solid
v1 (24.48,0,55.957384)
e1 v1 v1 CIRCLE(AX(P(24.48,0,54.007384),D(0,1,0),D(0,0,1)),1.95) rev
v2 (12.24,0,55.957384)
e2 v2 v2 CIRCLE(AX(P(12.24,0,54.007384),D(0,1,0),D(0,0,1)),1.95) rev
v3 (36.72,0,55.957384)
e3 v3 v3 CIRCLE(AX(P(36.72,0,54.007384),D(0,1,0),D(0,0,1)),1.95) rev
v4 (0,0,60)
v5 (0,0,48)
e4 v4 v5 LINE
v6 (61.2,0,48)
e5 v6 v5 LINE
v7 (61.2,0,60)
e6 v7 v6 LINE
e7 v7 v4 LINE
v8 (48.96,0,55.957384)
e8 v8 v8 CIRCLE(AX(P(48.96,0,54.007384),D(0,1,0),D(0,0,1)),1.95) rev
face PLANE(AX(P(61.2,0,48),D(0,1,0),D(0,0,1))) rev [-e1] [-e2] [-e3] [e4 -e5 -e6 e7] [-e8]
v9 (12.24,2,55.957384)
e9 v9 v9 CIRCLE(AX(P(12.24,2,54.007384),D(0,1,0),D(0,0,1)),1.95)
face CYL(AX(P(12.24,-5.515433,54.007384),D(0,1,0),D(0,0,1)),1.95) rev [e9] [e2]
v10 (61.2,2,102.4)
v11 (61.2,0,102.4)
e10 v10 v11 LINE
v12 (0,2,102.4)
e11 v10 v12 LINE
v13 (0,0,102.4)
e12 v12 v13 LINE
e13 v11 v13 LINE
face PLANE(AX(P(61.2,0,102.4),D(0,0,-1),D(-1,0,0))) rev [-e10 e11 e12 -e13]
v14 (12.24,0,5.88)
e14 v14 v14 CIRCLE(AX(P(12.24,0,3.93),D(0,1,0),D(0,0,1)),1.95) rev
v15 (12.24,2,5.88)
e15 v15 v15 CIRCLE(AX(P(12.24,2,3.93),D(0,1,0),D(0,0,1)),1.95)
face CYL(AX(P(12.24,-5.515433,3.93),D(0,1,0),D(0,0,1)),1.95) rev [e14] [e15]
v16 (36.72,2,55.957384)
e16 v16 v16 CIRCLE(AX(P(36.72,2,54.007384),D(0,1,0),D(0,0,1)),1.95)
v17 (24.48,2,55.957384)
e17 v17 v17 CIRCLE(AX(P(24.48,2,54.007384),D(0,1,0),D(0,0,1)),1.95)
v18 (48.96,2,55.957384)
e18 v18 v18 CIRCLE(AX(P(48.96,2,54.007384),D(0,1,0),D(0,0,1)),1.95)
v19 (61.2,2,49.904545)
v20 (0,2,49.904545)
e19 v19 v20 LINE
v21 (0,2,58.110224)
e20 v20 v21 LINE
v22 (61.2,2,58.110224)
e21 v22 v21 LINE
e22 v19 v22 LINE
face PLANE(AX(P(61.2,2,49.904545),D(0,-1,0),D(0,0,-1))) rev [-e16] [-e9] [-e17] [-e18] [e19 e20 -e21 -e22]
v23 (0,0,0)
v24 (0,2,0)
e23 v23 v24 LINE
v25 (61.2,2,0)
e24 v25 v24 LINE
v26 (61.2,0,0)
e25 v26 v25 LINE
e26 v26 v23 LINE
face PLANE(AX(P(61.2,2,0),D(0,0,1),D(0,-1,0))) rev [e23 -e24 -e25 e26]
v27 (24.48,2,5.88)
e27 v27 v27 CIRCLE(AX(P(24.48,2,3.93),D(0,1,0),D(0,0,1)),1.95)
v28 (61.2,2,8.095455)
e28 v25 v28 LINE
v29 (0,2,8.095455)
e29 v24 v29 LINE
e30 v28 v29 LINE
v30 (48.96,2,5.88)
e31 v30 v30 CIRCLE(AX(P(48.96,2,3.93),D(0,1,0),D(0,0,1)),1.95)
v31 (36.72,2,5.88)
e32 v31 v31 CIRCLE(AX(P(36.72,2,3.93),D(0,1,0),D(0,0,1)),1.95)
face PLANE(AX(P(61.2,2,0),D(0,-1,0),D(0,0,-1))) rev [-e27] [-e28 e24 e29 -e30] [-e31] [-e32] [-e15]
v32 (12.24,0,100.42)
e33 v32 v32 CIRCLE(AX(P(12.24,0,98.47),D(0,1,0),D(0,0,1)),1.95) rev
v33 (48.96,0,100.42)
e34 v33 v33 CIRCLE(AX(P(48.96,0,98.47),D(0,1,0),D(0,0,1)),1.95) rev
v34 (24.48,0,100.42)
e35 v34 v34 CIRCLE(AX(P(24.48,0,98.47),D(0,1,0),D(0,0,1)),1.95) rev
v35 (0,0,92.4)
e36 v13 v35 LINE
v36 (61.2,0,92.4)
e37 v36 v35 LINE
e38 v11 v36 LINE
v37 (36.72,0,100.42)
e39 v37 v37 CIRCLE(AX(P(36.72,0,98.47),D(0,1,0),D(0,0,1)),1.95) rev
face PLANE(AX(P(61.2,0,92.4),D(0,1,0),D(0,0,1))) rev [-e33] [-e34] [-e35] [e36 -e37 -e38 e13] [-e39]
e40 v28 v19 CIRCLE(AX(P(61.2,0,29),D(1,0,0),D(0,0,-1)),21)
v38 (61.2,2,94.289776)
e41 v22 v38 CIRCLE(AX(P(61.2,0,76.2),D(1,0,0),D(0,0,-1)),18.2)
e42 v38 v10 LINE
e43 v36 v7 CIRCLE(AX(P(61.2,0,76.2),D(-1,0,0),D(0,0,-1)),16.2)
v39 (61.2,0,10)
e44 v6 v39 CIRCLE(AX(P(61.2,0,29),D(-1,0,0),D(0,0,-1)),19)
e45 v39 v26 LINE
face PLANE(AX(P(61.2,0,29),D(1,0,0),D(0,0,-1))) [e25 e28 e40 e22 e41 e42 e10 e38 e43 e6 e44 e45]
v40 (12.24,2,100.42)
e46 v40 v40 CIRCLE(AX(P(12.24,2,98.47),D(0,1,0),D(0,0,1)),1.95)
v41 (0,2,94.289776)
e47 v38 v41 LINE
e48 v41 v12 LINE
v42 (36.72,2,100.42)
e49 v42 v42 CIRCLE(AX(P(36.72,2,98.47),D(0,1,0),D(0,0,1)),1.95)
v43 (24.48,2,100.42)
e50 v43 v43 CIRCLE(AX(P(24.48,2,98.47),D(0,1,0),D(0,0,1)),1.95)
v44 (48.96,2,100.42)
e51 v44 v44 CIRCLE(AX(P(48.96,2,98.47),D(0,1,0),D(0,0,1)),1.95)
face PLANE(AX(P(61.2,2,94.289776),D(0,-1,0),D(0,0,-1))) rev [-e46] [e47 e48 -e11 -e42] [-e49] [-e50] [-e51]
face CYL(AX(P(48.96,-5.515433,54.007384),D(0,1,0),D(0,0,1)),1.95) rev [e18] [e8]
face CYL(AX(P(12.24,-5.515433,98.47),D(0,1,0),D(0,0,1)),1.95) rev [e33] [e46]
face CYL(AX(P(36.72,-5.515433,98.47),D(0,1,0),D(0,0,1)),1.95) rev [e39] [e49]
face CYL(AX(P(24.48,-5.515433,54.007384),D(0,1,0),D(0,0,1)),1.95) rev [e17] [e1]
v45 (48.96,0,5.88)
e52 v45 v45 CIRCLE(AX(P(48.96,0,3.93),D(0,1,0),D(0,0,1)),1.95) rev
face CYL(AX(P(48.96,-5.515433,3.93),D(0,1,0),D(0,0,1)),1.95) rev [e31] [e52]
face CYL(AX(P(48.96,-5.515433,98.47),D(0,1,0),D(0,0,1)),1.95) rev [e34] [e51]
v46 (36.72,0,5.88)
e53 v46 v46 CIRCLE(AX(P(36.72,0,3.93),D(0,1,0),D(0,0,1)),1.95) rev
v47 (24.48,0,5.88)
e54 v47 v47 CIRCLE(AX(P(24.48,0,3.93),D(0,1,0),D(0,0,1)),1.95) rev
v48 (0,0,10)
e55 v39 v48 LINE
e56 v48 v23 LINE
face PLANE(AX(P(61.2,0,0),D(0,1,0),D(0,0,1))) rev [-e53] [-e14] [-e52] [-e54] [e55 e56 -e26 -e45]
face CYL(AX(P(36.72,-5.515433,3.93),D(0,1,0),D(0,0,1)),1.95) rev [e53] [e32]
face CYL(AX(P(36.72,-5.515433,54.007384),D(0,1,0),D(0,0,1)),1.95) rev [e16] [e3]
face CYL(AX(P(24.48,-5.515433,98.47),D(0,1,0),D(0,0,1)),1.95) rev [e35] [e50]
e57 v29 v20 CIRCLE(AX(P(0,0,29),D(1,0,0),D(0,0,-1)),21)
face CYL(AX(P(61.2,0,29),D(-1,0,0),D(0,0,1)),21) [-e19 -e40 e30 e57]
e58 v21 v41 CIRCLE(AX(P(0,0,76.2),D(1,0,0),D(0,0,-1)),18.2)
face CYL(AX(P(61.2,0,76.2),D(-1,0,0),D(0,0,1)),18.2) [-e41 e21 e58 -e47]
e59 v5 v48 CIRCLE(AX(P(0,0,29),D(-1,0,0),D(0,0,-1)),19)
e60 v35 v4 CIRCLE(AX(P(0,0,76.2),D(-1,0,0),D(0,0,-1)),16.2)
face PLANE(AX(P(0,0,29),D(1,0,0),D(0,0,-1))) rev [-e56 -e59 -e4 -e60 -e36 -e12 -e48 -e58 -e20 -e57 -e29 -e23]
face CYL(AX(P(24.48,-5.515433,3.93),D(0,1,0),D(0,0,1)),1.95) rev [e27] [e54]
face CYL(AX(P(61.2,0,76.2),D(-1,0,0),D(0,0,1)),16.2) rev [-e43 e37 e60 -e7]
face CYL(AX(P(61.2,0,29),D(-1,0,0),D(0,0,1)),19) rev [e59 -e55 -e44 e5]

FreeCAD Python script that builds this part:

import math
import FreeCAD as App
import Part
import Sketcher
Q = App.Units.Quantity

doc = App.newDocument("Part")
params = doc.addObject("Spreadsheet::Sheet", "Params")
for row, (alias, value) in enumerate([
    ("sketch1_radius", "21 mm"),
    ("sketch1_radius2", "19 mm"),
    ("sketch1_radius3", "18.2 mm"),
    ("sketch1_radius4", "16.2 mm"),
    ("sketch1_width", "2 mm"),
    ("pad1_length", "61.2 mm"),
    ("sketch2_diameter", "3.9 mm"),
    ("pocket1_length", "2 mm"),
], start=1):
    params.set(f"A{row}", alias)
    params.set(f"B{row}", "=" + value)
    params.setAlias(f"B{row}", alias)

body = doc.addObject("PartDesign::Body", "Body")

# Sketch on YZ plane
sketch1 = body.newObject("Sketcher::SketchObject", "Sketch")
sketch1.AttachmentSupport = (doc.getObject("YZ_Plane"), [""])
sketch1.MapMode = "FlatFace"
sketch1.addGeometry(Part.LineSegment(App.Vector(0, 10, 0), App.Vector(0, 0, 0)), False)
sketch1.addGeometry(Part.LineSegment(App.Vector(0, 0, 0), App.Vector(2, 0, 0)), False)
sketch1.addGeometry(Part.LineSegment(App.Vector(2, 0, 0), App.Vector(2, 8.095455, 0)), False)
sketch1.addGeometry(Part.ArcOfCircle(Part.Circle(App.Vector(0, 29, 0), App.Vector(0, 0, 1), 21), math.radians(-84.534976), math.radians(84.534976)), False)
sketch1.addGeometry(Part.LineSegment(App.Vector(2, 49.904545, 0), App.Vector(2, 58.110224, 0)), False)
sketch1.addGeometry(Part.ArcOfCircle(Part.Circle(App.Vector(0, 76.2, 0), App.Vector(0, 0, 1), 18.2), math.radians(-83.691019), math.radians(83.691019)), False)
sketch1.addGeometry(Part.LineSegment(App.Vector(2, 94.289776, 0), App.Vector(2, 102.4, 0)), False)
sketch1.addGeometry(Part.LineSegment(App.Vector(2, 102.4, 0), App.Vector(0, 102.4, 0)), False)
sketch1.addGeometry(Part.LineSegment(App.Vector(0, 102.4, 0), App.Vector(0, 92.4, 0)), False)
sketch1.addGeometry(Part.ArcOfCircle(Part.Circle(App.Vector(0, 76.2, 0), App.Vector(0, 0, 1), 16.2), math.radians(-90), math.radians(90)), False)
sketch1.addGeometry(Part.LineSegment(App.Vector(0, 60, 0), App.Vector(0, 48, 0)), False)
sketch1.addGeometry(Part.ArcOfCircle(Part.Circle(App.Vector(0, 29, 0), App.Vector(0, 0, 1), 19), math.radians(-90), math.radians(90)), False)
sketch1.addConstraint(Sketcher.Constraint("Coincident", 0, 2, 1, 1))
sketch1.addConstraint(Sketcher.Constraint("Coincident", 1, 2, 2, 1))
sketch1.addConstraint(Sketcher.Constraint("Coincident", 2, 2, 3, 1))
sketch1.addConstraint(Sketcher.Constraint("Coincident", 3, 2, 4, 1))
sketch1.addConstraint(Sketcher.Constraint("Coincident", 4, 2, 5, 1))
sketch1.addConstraint(Sketcher.Constraint("Coincident", 5, 2, 6, 1))
sketch1.addConstraint(Sketcher.Constraint("Coincident", 6, 2, 7, 1))
sketch1.addConstraint(Sketcher.Constraint("Coincident", 7, 2, 8, 1))
sketch1.addConstraint(Sketcher.Constraint("Coincident", 8, 2, 9, 2))
sketch1.addConstraint(Sketcher.Constraint("Coincident", 9, 1, 10, 1))
sketch1.addConstraint(Sketcher.Constraint("Coincident", 10, 2, 11, 2))
sketch1.addConstraint(Sketcher.Constraint("Coincident", 11, 1, 0, 1))
sketch1.addConstraint(Sketcher.Constraint("Vertical", 0))
sketch1.addConstraint(Sketcher.Constraint("Horizontal", 1))
sketch1.addConstraint(Sketcher.Constraint("Vertical", 2))
sketch1.addConstraint(Sketcher.Constraint("Vertical", 4))
sketch1.addConstraint(Sketcher.Constraint("Vertical", 6))
sketch1.addConstraint(Sketcher.Constraint("Horizontal", 7))
sketch1.addConstraint(Sketcher.Constraint("Vertical", 8))
sketch1.addConstraint(Sketcher.Constraint("Vertical", 10))
sketch1.addConstraint(Sketcher.Constraint("Coincident", 0, 2, -1, 1))
sketch1.addConstraint(Sketcher.Constraint("Coincident", 9, 3, 5, 3))
sketch1.addConstraint(Sketcher.Constraint("Coincident", 11, 3, 3, 3))
sketch1.addConstraint(Sketcher.Constraint("PointOnObject", 3, 3, -2))
sketch1.addConstraint(Sketcher.Constraint("PointOnObject", 5, 3, -2))
sketch1.addConstraint(Sketcher.Constraint("PointOnObject", 7, 2, -2))
sketch1.addConstraint(Sketcher.Constraint("PointOnObject", 9, 1, -2))
sketch1.addConstraint(Sketcher.Constraint("Vertical", 2, 2, 3, 2))
sketch1.addConstraint(Sketcher.Constraint("Vertical", 4, 2, 5, 2))
sketch1.addConstraint(Sketcher.Constraint("Equal", 0, 8))
sketch1.addConstraint(Sketcher.Constraint("Radius", 3, Q("21 mm")))
sketch1.addConstraint(Sketcher.Constraint("Radius", 11, Q("19 mm")))
sketch1.addConstraint(Sketcher.Constraint("Radius", 5, Q("18.2 mm")))
sketch1.addConstraint(Sketcher.Constraint("Radius", 9, Q("16.2 mm")))
sketch1.addConstraint(Sketcher.Constraint("DistanceX", 1, 1, 1, 2, Q("2 mm")))
sketch1.addConstraint(Sketcher.Constraint("DistanceY", 0, 2, 0, 1, Q("10 mm")))
sketch1.addConstraint(Sketcher.Constraint("DistanceY", 10, 2, 10, 1, Q("12 mm")))
sketch1.setExpression("Constraints[30]", "Params.sketch1_radius")
sketch1.setExpression("Constraints[31]", "Params.sketch1_radius2")
sketch1.setExpression("Constraints[32]", "Params.sketch1_radius3")
sketch1.setExpression("Constraints[33]", "Params.sketch1_radius4")
sketch1.setExpression("Constraints[34]", "Params.sketch1_width")
pad1 = body.newObject("PartDesign::Pad", "Pad")
pad1.Profile = sketch1
pad1.setExpression("Length", "Params.pad1_length")

# Sketch on XZ plane
sketch2 = body.newObject("Sketcher::SketchObject", "Sketch001")
sketch2.AttachmentSupport = (doc.getObject("XZ_Plane"), [""])
sketch2.MapMode = "FlatFace"
sketch2.AttachmentOffset = App.Placement(App.Vector(0, 0, -2), App.Rotation())
sketch2.addGeometry(Part.Circle(App.Vector(12.24, 3.93, 0), App.Vector(0, 0, 1), 1.95), False)
sketch2.addGeometry(Part.Circle(App.Vector(24.48, 3.93, 0), App.Vector(0, 0, 1), 1.95), False)
sketch2.addGeometry(Part.Circle(App.Vector(36.72, 3.93, 0), App.Vector(0, 0, 1), 1.95), False)
sketch2.addGeometry(Part.Circle(App.Vector(48.96, 3.93, 0), App.Vector(0, 0, 1), 1.95), False)
sketch2.addGeometry(Part.Circle(App.Vector(12.24, 54.007384, 0), App.Vector(0, 0, 1), 1.95), False)
sketch2.addGeometry(Part.Circle(App.Vector(24.48, 54.007384, 0), App.Vector(0, 0, 1), 1.95), False)
sketch2.addGeometry(Part.Circle(App.Vector(36.72, 54.007384, 0), App.Vector(0, 0, 1), 1.95), False)
sketch2.addGeometry(Part.Circle(App.Vector(48.96, 54.007384, 0), App.Vector(0, 0, 1), 1.95), False)
sketch2.addGeometry(Part.Circle(App.Vector(12.24, 98.47, 0), App.Vector(0, 0, 1), 1.95), False)
sketch2.addGeometry(Part.Circle(App.Vector(24.48, 98.47, 0), App.Vector(0, 0, 1), 1.95), False)
sketch2.addGeometry(Part.Circle(App.Vector(36.72, 98.47, 0), App.Vector(0, 0, 1), 1.95), False)
sketch2.addGeometry(Part.Circle(App.Vector(48.96, 98.47, 0), App.Vector(0, 0, 1), 1.95), False)
sketch2.addConstraint(Sketcher.Constraint("Equal", 0, 1))
sketch2.addConstraint(Sketcher.Constraint("Equal", 1, 2))
sketch2.addConstraint(Sketcher.Constraint("Equal", 2, 3))
sketch2.addConstraint(Sketcher.Constraint("Equal", 3, 4))
sketch2.addConstraint(Sketcher.Constraint("Equal", 4, 5))
sketch2.addConstraint(Sketcher.Constraint("Equal", 5, 6))
sketch2.addConstraint(Sketcher.Constraint("Equal", 6, 7))
sketch2.addConstraint(Sketcher.Constraint("Equal", 7, 8))
sketch2.addConstraint(Sketcher.Constraint("Equal", 8, 9))
sketch2.addConstraint(Sketcher.Constraint("Equal", 9, 10))
sketch2.addConstraint(Sketcher.Constraint("Equal", 10, 11))
sketch2.addConstraint(Sketcher.Constraint("Horizontal", 0, 3, 1, 3))
sketch2.addConstraint(Sketcher.Constraint("Horizontal", 1, 3, 2, 3))
sketch2.addConstraint(Sketcher.Constraint("Horizontal", 2, 3, 3, 3))
sketch2.addConstraint(Sketcher.Constraint("Horizontal", 4, 3, 5, 3))
sketch2.addConstraint(Sketcher.Constraint("Horizontal", 5, 3, 6, 3))
sketch2.addConstraint(Sketcher.Constraint("Horizontal", 6, 3, 7, 3))
sketch2.addConstraint(Sketcher.Constraint("Horizontal", 8, 3, 9, 3))
sketch2.addConstraint(Sketcher.Constraint("Horizontal", 9, 3, 10, 3))
sketch2.addConstraint(Sketcher.Constraint("Horizontal", 10, 3, 11, 3))
sketch2.addConstraint(Sketcher.Constraint("Vertical", 0, 3, 4, 3))
sketch2.addConstraint(Sketcher.Constraint("Vertical", 1, 3, 5, 3))
sketch2.addConstraint(Sketcher.Constraint("Vertical", 2, 3, 6, 3))
sketch2.addConstraint(Sketcher.Constraint("Vertical", 3, 3, 7, 3))
sketch2.addConstraint(Sketcher.Constraint("Vertical", 4, 3, 8, 3))
sketch2.addConstraint(Sketcher.Constraint("Vertical", 5, 3, 9, 3))
sketch2.addConstraint(Sketcher.Constraint("Vertical", 6, 3, 10, 3))
sketch2.addConstraint(Sketcher.Constraint("Vertical", 7, 3, 11, 3))
sketch2.addConstraint(Sketcher.Constraint("Diameter", 0, Q("3.9 mm")))
sketch2.addConstraint(Sketcher.Constraint("DistanceX", -1, 1, 0, 3, Q("12.24 mm")))
sketch2.addConstraint(Sketcher.Constraint("DistanceY", -1, 1, 0, 3, Q("3.93 mm")))
sketch2.addConstraint(Sketcher.Constraint("DistanceX", -1, 1, 1, 3, Q("24.48 mm")))
sketch2.addConstraint(Sketcher.Constraint("DistanceX", -1, 1, 2, 3, Q("36.72 mm")))
sketch2.addConstraint(Sketcher.Constraint("DistanceX", -1, 1, 3, 3, Q("48.96 mm")))
sketch2.addConstraint(Sketcher.Constraint("DistanceY", -1, 1, 8, 3, Q("98.47 mm")))
sketch2.addConstraint(Sketcher.Constraint("DistanceY", -1, 1, 4, 3, Q("54.007384 mm")))
sketch2.setExpression("Constraints[28]", "Params.sketch2_diameter")
pocket1 = body.newObject("PartDesign::Pocket", "Pocket")
pocket1.Profile = sketch2
pocket1.setExpression("Length", "Params.pocket1_length")
pocket1.Reversed = True

doc.recompute()
